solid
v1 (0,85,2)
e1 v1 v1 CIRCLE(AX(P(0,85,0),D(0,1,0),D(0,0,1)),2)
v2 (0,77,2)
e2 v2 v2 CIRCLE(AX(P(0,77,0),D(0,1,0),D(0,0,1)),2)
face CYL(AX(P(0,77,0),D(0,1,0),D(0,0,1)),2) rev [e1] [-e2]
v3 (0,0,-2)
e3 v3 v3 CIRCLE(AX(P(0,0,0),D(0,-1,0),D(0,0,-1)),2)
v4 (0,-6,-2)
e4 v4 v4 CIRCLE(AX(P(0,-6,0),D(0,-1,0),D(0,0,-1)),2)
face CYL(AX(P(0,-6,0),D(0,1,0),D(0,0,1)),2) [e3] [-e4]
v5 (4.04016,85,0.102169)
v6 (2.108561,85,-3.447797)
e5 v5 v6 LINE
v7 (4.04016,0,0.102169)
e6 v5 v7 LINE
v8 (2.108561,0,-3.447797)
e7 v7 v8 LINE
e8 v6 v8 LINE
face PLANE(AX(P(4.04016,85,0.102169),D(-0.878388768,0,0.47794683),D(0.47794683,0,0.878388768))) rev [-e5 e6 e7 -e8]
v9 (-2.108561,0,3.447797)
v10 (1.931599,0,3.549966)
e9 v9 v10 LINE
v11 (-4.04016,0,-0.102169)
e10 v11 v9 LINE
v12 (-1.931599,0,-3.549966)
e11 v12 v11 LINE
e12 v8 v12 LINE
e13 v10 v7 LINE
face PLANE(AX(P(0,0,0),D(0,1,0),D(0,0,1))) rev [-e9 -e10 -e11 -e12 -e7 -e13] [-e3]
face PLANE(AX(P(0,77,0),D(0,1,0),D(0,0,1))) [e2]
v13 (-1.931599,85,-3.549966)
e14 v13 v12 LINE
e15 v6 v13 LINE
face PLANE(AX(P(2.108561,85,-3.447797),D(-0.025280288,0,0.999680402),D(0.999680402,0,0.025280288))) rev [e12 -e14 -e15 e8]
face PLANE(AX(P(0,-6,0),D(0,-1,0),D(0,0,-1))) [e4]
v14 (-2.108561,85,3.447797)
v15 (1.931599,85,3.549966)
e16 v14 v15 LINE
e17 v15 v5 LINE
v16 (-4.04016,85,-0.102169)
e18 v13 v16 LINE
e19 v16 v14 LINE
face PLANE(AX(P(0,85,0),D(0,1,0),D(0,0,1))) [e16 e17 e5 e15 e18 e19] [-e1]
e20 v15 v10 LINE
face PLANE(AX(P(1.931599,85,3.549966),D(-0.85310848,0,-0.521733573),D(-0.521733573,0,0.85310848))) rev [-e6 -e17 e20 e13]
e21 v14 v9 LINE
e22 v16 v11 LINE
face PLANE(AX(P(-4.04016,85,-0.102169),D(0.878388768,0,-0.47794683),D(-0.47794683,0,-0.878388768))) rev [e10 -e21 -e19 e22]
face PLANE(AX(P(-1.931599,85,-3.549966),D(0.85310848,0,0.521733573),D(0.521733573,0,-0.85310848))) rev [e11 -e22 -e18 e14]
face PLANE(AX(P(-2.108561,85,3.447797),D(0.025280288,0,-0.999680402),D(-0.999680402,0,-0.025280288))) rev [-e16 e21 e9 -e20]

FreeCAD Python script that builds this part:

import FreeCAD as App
import Part
import Sketcher
Q = App.Units.Quantity

doc = App.newDocument("Part")
body = doc.addObject("PartDesign::Body", "Body")

sketch1 = body.newObject("Sketcher::SketchObject", "Sketch")
sketch1.AttachmentSupport = (doc.getObject("XZ_Plane"), [""])
sketch1.MapMode = "FlatFace"
sketch1.addGeometry([
    Part.LineSegment(App.Vector(1.9, 3.5, 0), App.Vector(4, 0.1, 0)),
    Part.LineSegment(App.Vector(4, 0.1, 0), App.Vector(2.1, -3.4, 0)),
    Part.LineSegment(App.Vector(2.1, -3.4, 0), App.Vector(-1.9, -3.5, 0)),
    Part.LineSegment(App.Vector(-1.9, -3.5, 0), App.Vector(-4, -0.1, 0)),
    Part.LineSegment(App.Vector(-4, -0.1, 0), App.Vector(-2.1, 3.4, 0)),
    Part.LineSegment(App.Vector(-2.1, 3.4, 0), App.Vector(1.9, 3.5, 0)),
], False)
sketch1.addConstraint([
    Sketcher.Constraint("Coincident", 0, 2, 1, 1),
    Sketcher.Constraint("Coincident", 1, 2, 2, 1),
    Sketcher.Constraint("Coincident", 2, 2, 3, 1),
    Sketcher.Constraint("Coincident", 3, 2, 4, 1),
    Sketcher.Constraint("Coincident", 4, 2, 5, 1),
    Sketcher.Constraint("Coincident", 5, 2, 0, 1),
    Sketcher.Constraint("Symmetric", 0, 2, 3, 2, -1, 1),
    Sketcher.Constraint("Symmetric", 1, 2, 4, 2, -1, 1),
    Sketcher.Constraint("Symmetric", 2, 2, 5, 2, -1, 1),
    Sketcher.Constraint("Equal", 0, 1),
    Sketcher.Constraint("Equal", 1, 2),
    Sketcher.Constraint("DistanceX", 2, 2, -1, 1, Q("1.931599 mm")),
    Sketcher.Constraint("DistanceX", 1, 2, 0, 2, Q("1.931599 mm")),
    Sketcher.Constraint("Distance", 0, Q("4.041452 mm")),
    Sketcher.Constraint("DistanceX", -1, 1, 0, 2, Q("4.04016 mm")),
])
pad1 = body.newObject("PartDesign::Pad", "Pad")
pad1.Profile = sketch1
pad1.Length = 85
pad1.Reversed = True

sketch2 = body.newObject("Sketcher::SketchObject", "Sketch001")
sketch2.AttachmentSupport = (doc.getObject("XZ_Plane"), [""])
sketch2.MapMode = "FlatFace"
sketch2.AttachmentOffset = App.Placement(App.Vector(0, 0, -85), App.Rotation())
sketch2.addGeometry(Part.Circle(App.Vector(0, 0, 0), App.Vector(0, 0, 1), 2), False)
sketch2.addConstraint([
    Sketcher.Constraint("Coincident", 0, 3, -1, 1),
    Sketcher.Constraint("Diameter", 0, Q("4 mm")),
])
pocket1 = body.newObject("PartDesign::Pocket", "Pocket")
pocket1.Profile = sketch2
pocket1.Length = 8
pocket1.Reversed = True

sketch3 = body.newObject("Sketcher::SketchObject", "Sketch002")
sketch3.AttachmentSupport = (doc.getObject("XZ_Plane"), [""])
sketch3.MapMode = "FlatFace"
sketch3.addGeometry(Part.Circle(App.Vector(0, 0, 0), App.Vector(0, 0, 1), 2), False)
sketch3.addConstraint([
    Sketcher.Constraint("Coincident", 0, 3, -1, 1),
    Sketcher.Constraint("Diameter", 0, Q("4 mm")),
])
pad2 = body.newObject("PartDesign::Pad", "Pad001")
pad2.Profile = sketch3
pad2.Length = 6

doc.recompute()
